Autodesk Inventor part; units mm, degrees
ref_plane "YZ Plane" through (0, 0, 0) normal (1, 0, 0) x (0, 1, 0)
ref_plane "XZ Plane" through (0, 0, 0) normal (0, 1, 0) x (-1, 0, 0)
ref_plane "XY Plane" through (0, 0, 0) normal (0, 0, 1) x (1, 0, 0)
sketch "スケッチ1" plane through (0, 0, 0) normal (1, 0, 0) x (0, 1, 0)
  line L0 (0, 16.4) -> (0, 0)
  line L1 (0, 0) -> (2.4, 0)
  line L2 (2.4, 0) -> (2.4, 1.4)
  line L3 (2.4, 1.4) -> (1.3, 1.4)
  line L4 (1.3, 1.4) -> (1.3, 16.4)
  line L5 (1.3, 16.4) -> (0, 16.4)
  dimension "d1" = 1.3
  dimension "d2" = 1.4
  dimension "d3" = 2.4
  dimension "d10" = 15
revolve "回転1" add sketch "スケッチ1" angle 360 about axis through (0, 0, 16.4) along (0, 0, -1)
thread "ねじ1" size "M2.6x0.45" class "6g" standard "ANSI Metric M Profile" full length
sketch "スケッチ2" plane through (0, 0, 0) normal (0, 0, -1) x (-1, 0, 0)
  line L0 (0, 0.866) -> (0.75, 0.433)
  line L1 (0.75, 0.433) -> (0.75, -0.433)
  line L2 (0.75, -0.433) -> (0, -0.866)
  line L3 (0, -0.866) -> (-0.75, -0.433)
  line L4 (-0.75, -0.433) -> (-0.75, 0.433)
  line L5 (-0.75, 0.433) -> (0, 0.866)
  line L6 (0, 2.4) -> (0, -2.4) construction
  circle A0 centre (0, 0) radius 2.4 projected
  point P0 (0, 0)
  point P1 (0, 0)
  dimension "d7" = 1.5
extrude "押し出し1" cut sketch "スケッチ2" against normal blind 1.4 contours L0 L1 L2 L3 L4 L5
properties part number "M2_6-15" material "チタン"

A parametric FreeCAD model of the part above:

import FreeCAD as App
import Part
import Sketcher

V = App.Vector
Q = App.Units.Quantity

doc = App.newDocument("Part")
body = doc.addObject("PartDesign::Body", "Body")

# Sketch on YZ plane
sketch1 = doc.addObject("Sketcher::SketchObject", "Sketch")
body.addObject(sketch1)
sketch1.AttachmentSupport = (doc.YZ_Plane, [""])
sketch1.MapMode = "FlatFace"
sketch1.addGeometry(Part.LineSegment(V(1.3, 16.4, 0), V(0, 16.4, 0)), False)
sketch1.addGeometry(Part.LineSegment(V(0, 16.4, 0), V(0, 0, 0)), False)
sketch1.addGeometry(Part.LineSegment(V(0, 0, 0), V(2.4, 0, 0)), False)
sketch1.addGeometry(Part.LineSegment(V(2.4, 0, 0), V(2.4, 1.4, 0)), False)
sketch1.addGeometry(Part.LineSegment(V(2.4, 1.4, 0), V(1.3, 1.4, 0)), False)
sketch1.addGeometry(Part.LineSegment(V(1.3, 1.4, 0), V(1.3, 16.4, 0)), False)
sketch1.addConstraint(Sketcher.Constraint("Coincident", 0, 2, 1, 1))
sketch1.addConstraint(Sketcher.Constraint("Coincident", 1, 2, 2, 1))
sketch1.addConstraint(Sketcher.Constraint("Coincident", 2, 2, 3, 1))
sketch1.addConstraint(Sketcher.Constraint("Coincident", 3, 2, 4, 1))
sketch1.addConstraint(Sketcher.Constraint("Coincident", 4, 2, 5, 1))
sketch1.addConstraint(Sketcher.Constraint("Coincident", 5, 2, 0, 1))
sketch1.addConstraint(Sketcher.Constraint("Horizontal", 0))
sketch1.addConstraint(Sketcher.Constraint("Vertical", 1))
sketch1.addConstraint(Sketcher.Constraint("Horizontal", 2))
sketch1.addConstraint(Sketcher.Constraint("Vertical", 3))
sketch1.addConstraint(Sketcher.Constraint("Horizontal", 4))
sketch1.addConstraint(Sketcher.Constraint("Vertical", 5))
sketch1.addConstraint(Sketcher.Constraint("Coincident", 1, 2, -1, 1))
sketch1.addConstraint(Sketcher.Constraint("DistanceY", 5, 1, 5, 2, 15.0))
sketch1.addConstraint(Sketcher.Constraint("DistanceX", 0, 2, 0, 1, 1.3))
sketch1.addConstraint(Sketcher.Constraint("DistanceX", 2, 1, 2, 2, 2.4))
sketch1.addConstraint(Sketcher.Constraint("DistanceY", 3, 1, 3, 2, 1.4))
revolution = doc.addObject("PartDesign::Revolution", "Revolution")
body.addObject(revolution)
revolution.Profile = sketch1
revolution.ReferenceAxis = (sketch1, ["V_Axis"])
revolution.Angle = 360

# Sketch on XY plane
sketch2 = doc.addObject("Sketcher::SketchObject", "Sketch001")
body.addObject(sketch2)
sketch2.AttachmentSupport = (doc.XY_Plane, [""])
sketch2.MapMode = "FlatFace"
sketch2.addGeometry(Part.LineSegment(V(-0.8, 0.4, 0), V(0, 0.9, 0)), False)
sketch2.addGeometry(Part.LineSegment(V(0, 0.9, 0), V(0.8, 0.4, 0)), False)
sketch2.addGeometry(Part.LineSegment(V(0.8, 0.4, 0), V(0.8, -0.4, 0)), False)
sketch2.addGeometry(Part.LineSegment(V(0.8, -0.4, 0), V(0, -0.9, 0)), False)
sketch2.addGeometry(Part.LineSegment(V(0, -0.9, 0), V(-0.8, -0.4, 0)), False)
sketch2.addGeometry(Part.LineSegment(V(-0.8, -0.4, 0), V(-0.8, 0.4, 0)), False)
sketch2.addConstraint(Sketcher.Constraint("Coincident", 0, 2, 1, 1))
sketch2.addConstraint(Sketcher.Constraint("Coincident", 1, 2, 2, 1))
sketch2.addConstraint(Sketcher.Constraint("Coincident", 2, 2, 3, 1))
sketch2.addConstraint(Sketcher.Constraint("Coincident", 3, 2, 4, 1))
sketch2.addConstraint(Sketcher.Constraint("Coincident", 4, 2, 5, 1))
sketch2.addConstraint(Sketcher.Constraint("Coincident", 5, 2, 0, 1))
sketch2.addConstraint(Sketcher.Constraint("Vertical", 2))
sketch2.addConstraint(Sketcher.Constraint("Vertical", 5))
sketch2.addConstraint(Sketcher.Constraint("Symmetric", 0, 2, 3, 2, -1, 1))
sketch2.addConstraint(Sketcher.Constraint("Symmetric", 1, 2, 4, 2, -1, 1))
sketch2.addConstraint(Sketcher.Constraint("PointOnObject", 0, 2, -2))
sketch2.addConstraint(Sketcher.Constraint("Parallel", 0, 3))
sketch2.addConstraint(Sketcher.Constraint("Horizontal", 2, 2, 4, 2))
sketch2.addConstraint(Sketcher.Constraint("DistanceX", 4, 2, 2, 2, 1.5))
sketch2.addConstraint(Sketcher.Constraint("Angle", 0, Q("29.9993 deg")))
sketch2.addConstraint(Sketcher.Constraint("DistanceY", 2, 2, 2, 1, 0.866))
pocket1 = doc.addObject("PartDesign::Pocket", "Pocket")
body.addObject(pocket1)
pocket1.Profile = sketch2
pocket1.Length = 1.4
pocket1.Reversed = True

doc.recompute()
